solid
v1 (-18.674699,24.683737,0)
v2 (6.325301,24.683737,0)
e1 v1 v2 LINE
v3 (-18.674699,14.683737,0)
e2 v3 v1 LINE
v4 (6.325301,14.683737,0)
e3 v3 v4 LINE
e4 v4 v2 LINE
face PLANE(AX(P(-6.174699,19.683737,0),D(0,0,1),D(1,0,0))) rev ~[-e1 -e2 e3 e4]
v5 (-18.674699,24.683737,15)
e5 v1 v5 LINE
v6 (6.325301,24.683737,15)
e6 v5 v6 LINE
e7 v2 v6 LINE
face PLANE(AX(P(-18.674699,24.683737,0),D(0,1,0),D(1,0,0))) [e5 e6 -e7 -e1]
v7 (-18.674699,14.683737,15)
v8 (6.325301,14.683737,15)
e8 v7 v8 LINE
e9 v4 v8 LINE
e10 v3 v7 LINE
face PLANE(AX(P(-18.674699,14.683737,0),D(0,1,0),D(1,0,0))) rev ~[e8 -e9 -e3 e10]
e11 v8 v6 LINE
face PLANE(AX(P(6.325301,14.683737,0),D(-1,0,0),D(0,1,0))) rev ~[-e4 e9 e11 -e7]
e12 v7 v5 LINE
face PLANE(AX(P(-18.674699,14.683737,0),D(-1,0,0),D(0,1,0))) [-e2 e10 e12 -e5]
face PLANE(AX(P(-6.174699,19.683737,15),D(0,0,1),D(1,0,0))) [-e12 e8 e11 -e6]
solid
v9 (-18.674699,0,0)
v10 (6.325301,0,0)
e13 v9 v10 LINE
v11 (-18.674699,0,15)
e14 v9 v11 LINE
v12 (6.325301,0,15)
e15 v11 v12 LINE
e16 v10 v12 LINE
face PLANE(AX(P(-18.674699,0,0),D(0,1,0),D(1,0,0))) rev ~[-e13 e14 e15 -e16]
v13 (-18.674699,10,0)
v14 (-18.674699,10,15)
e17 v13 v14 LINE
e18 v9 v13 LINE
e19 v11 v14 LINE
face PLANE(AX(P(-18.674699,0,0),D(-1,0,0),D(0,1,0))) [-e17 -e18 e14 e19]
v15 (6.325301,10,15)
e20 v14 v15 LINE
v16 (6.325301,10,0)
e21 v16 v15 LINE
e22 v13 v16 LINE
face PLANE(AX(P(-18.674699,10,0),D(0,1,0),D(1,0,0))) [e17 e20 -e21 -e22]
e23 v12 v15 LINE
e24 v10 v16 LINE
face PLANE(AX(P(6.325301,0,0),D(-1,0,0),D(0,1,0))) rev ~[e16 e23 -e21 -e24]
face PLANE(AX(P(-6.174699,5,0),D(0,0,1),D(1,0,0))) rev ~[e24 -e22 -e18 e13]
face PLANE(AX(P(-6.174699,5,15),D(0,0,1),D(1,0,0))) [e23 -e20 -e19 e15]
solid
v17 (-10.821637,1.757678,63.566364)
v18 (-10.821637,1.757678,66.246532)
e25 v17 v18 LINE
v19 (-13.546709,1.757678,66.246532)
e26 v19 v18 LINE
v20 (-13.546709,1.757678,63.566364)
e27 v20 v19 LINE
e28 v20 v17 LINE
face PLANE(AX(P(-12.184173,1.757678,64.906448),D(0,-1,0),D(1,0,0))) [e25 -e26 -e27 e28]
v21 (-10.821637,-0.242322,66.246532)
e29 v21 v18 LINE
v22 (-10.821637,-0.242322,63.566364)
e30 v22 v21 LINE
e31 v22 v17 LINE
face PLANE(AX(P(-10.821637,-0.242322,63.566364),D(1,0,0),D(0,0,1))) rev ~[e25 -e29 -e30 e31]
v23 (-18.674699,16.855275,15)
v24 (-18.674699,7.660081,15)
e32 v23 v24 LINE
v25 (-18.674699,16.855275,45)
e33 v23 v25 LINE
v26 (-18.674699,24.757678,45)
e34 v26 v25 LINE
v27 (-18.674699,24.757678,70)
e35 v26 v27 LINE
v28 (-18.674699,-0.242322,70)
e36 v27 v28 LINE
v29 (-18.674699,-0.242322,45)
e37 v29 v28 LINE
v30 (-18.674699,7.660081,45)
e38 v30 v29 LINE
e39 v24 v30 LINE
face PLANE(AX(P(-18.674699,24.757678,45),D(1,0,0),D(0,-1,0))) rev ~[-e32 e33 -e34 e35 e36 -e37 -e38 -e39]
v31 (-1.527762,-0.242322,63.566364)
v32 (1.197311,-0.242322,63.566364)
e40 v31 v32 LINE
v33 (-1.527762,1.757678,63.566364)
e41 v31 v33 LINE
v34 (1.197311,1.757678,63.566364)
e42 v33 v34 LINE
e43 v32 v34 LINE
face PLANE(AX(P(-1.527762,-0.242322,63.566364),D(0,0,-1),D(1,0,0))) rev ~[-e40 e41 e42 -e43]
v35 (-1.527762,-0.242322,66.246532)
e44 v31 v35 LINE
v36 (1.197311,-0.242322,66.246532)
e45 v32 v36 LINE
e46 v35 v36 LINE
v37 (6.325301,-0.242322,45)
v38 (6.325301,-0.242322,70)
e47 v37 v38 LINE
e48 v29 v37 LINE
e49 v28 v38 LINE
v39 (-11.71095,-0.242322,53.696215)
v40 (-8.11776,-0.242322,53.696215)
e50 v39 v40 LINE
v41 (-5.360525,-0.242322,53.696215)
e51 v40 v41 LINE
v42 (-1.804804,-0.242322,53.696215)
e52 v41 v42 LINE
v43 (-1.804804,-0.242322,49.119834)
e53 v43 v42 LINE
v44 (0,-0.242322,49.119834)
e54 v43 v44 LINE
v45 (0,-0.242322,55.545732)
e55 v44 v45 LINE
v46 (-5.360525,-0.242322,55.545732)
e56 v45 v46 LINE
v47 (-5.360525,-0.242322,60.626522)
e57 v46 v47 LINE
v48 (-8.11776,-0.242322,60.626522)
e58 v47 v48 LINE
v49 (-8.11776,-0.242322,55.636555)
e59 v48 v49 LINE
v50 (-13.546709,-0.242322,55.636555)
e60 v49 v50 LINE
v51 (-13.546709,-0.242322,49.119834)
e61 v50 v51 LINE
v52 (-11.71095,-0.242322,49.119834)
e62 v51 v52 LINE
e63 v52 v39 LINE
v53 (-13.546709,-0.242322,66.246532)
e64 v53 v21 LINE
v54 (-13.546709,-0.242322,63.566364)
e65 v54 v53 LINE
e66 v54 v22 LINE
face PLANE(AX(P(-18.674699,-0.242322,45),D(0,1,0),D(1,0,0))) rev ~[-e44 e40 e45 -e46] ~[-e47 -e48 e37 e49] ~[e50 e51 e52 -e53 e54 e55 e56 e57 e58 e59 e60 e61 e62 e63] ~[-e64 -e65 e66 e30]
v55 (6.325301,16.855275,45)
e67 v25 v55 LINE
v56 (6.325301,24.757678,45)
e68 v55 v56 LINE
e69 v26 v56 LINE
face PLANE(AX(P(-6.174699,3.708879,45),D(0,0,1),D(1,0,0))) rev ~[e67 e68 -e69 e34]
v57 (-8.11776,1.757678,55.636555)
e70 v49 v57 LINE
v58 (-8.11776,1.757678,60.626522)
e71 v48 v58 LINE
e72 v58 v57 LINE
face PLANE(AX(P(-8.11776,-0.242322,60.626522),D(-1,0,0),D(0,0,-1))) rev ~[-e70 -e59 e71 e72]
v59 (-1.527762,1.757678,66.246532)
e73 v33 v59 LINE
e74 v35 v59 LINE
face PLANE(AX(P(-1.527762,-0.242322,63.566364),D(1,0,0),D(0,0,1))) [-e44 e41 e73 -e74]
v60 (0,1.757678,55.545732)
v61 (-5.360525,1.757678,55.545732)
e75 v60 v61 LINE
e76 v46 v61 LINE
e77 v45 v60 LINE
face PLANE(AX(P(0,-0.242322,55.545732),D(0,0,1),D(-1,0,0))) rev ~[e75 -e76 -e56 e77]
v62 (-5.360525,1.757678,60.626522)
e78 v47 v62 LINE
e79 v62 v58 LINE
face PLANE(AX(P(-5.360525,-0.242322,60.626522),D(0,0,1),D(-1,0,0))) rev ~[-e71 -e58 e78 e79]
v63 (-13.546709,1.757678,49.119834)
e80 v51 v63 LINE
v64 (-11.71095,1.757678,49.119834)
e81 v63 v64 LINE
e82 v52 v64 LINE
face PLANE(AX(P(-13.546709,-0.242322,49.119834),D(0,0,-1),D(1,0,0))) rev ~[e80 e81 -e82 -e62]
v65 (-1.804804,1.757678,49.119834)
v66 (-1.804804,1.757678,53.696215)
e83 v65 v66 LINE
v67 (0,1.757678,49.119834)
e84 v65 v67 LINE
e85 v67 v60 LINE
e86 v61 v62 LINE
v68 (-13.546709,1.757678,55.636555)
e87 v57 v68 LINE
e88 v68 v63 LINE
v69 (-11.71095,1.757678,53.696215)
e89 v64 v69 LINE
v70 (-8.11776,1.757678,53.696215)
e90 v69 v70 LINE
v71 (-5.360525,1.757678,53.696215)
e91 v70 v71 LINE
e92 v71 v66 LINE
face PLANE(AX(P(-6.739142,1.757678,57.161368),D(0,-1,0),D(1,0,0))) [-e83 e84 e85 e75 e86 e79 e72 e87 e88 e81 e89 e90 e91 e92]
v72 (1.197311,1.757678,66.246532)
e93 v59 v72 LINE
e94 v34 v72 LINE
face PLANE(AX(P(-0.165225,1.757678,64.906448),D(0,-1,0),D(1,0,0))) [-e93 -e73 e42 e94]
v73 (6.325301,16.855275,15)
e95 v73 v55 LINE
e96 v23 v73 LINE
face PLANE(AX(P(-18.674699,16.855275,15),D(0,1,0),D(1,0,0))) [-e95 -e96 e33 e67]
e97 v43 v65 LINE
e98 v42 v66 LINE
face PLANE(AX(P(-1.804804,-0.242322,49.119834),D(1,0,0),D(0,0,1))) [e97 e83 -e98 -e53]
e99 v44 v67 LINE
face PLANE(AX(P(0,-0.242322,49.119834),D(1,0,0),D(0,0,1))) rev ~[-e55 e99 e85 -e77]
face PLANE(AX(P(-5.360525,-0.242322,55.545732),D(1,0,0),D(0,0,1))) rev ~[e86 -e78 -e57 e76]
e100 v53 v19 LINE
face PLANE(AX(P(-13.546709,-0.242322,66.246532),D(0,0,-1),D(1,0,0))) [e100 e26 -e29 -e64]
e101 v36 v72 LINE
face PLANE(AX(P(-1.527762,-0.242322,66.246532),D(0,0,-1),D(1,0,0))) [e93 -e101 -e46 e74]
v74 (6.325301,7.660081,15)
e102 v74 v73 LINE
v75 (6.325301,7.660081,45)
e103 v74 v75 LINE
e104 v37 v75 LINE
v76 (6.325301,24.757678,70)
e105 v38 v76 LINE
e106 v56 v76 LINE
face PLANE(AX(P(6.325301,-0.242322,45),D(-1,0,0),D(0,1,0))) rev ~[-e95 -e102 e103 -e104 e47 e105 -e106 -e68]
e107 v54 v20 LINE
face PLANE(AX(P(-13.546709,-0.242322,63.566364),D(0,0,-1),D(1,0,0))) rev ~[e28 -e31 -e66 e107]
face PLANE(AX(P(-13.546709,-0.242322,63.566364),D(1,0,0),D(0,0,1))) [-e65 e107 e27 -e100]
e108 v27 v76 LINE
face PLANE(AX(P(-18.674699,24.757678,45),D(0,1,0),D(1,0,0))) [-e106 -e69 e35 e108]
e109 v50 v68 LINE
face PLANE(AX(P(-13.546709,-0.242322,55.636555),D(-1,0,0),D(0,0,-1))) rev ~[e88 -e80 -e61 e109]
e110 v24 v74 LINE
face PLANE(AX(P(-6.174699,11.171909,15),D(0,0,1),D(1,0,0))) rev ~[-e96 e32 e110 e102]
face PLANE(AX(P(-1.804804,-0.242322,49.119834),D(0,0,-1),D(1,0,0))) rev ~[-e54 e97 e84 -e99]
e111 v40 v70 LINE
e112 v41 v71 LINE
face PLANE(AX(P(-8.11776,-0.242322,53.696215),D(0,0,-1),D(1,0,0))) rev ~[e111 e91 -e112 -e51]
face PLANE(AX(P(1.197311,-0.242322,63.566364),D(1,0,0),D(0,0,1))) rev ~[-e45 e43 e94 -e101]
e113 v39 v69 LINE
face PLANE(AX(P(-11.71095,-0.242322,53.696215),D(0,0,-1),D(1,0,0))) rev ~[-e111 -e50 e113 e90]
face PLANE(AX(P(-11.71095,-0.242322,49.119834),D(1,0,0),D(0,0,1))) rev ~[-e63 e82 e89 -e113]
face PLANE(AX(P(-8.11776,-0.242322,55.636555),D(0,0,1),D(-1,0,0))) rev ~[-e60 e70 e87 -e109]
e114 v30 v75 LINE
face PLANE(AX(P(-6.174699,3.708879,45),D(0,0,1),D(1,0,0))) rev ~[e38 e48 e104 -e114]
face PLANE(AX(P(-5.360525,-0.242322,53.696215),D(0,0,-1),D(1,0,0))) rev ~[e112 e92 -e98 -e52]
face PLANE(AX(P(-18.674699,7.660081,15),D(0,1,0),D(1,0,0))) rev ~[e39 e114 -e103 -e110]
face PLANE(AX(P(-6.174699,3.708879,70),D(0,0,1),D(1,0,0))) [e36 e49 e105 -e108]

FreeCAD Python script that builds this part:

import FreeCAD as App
import Part
import Sketcher
from FreeCAD import Vector


def add_polygon(sketch, points):
    """Adds a closed chain of lines whose ends are joined by coincident constraints."""
    first, n = sketch.GeometryCount, len(points)
    for a, b in zip(points, points[1:] + points[:1]):
        sketch.addGeometry(Part.LineSegment(App.Vector(*a, 0), App.Vector(*b, 0)), False)
    for i in range(n):
        sketch.addConstraint(Sketcher.Constraint("Coincident", first + i, 2, first + (i + 1) % n, 1))

doc = App.newDocument("Part")
params = doc.addObject("Spreadsheet::Sheet", "Params")
for row, (alias, value) in enumerate([
    ("sketch1_width", "25 mm"),
    ("sketch1_height", "10 mm"),
    ("pad1_length", "15 mm"),
    ("sketch2_width", "25 mm"),
    ("sketch2_height", "10 mm"),
    ("pad2_length", "15 mm"),
    ("sketch3_width", "25 mm"),
    ("pad3_length", "30 mm"),
    ("sketch4_width", "25 mm"),
    ("pad4_length", "25 mm"),
    ("pocket1_length", "2 mm"),
], start=1):
    params.set(f"A{row}", alias)
    params.set(f"B{row}", "=" + value)
    params.setAlias(f"B{row}", alias)

body = doc.addObject("PartDesign::Body", "Body")

# Sketch on XY plane
sketch1 = body.newObject("Sketcher::SketchObject", "Sketch")
sketch1.AttachmentSupport = (doc.getObject("XY_Plane"), [""])
sketch1.MapMode = "FlatFace"
add_polygon(sketch1, [(-18.674699, 24.683737), (-18.674699, 14.683737), (6.325301, 14.683737), (6.325301, 24.683737)])  # lines 0-3
sketch1.addConstraint(Sketcher.Constraint("Vertical", 0))
sketch1.addConstraint(Sketcher.Constraint("Horizontal", 1))
sketch1.addConstraint(Sketcher.Constraint("Vertical", 2))
sketch1.addConstraint(Sketcher.Constraint("Horizontal", 3))
sketch1.addConstraint(Sketcher.Constraint("DistanceX", 1, 1, 1, 2, 25.0))
sketch1.addConstraint(Sketcher.Constraint("DistanceY", 0, 2, 0, 1, 10.0))
sketch1.addConstraint(Sketcher.Constraint("DistanceX", 0, 2, -1, 1, 18.674699))
sketch1.addConstraint(Sketcher.Constraint("DistanceY", -1, 1, 0, 2, 14.683737))
sketch1.setExpression("Constraints[8]", "Params.sketch1_width")
sketch1.setExpression("Constraints[9]", "Params.sketch1_height")
pad1 = body.newObject("PartDesign::Pad", "Pad")
pad1.Profile = sketch1
pad1.setExpression("Length", "Params.pad1_length")
body2 = doc.addObject("PartDesign::Body", "Body001")

# Sketch on XY plane
sketch2 = body2.newObject("Sketcher::SketchObject", "Sketch001")
sketch2.AttachmentSupport = (doc.getObject("XY_Plane001"), [""])
sketch2.MapMode = "FlatFace"
add_polygon(sketch2, [(-18.674699, 10), (-18.674699, 0), (6.325301, 0), (6.325301, 10)])  # lines 0-3
sketch2.addConstraint(Sketcher.Constraint("Vertical", 0))
sketch2.addConstraint(Sketcher.Constraint("Horizontal", 1))
sketch2.addConstraint(Sketcher.Constraint("Vertical", 2))
sketch2.addConstraint(Sketcher.Constraint("Horizontal", 3))
sketch2.addConstraint(Sketcher.Constraint("PointOnObject", 0, 2, -1))
sketch2.addConstraint(Sketcher.Constraint("DistanceX", 1, 1, 1, 2, 25.0))
sketch2.addConstraint(Sketcher.Constraint("DistanceY", 0, 2, 0, 1, 10.0))
sketch2.addConstraint(Sketcher.Constraint("DistanceX", 0, 2, -1, 1, 18.674699))
sketch2.setExpression("Constraints[9]", "Params.sketch2_width")
sketch2.setExpression("Constraints[10]", "Params.sketch2_height")
pad2 = body2.newObject("PartDesign::Pad", "Pad001")
pad2.Profile = sketch2
pad2.setExpression("Length", "Params.pad2_length")
body3 = doc.addObject("PartDesign::Body", "Body002")

# Sketch on XY plane
sketch3 = body3.newObject("Sketcher::SketchObject", "Sketch002")
sketch3.AttachmentSupport = (doc.getObject("XY_Plane002"), [""])
sketch3.MapMode = "FlatFace"
sketch3.AttachmentOffset = App.Placement(Vector(0, 0, 15), App.Rotation())
add_polygon(sketch3, [(-18.674699, 7.660081), (6.325301, 7.660081), (6.325301, 16.855275), (-18.674699, 16.855275)])  # lines 0-3
sketch3.addConstraint(Sketcher.Constraint("Horizontal", 0))
sketch3.addConstraint(Sketcher.Constraint("Vertical", 1))
sketch3.addConstraint(Sketcher.Constraint("Horizontal", 2))
sketch3.addConstraint(Sketcher.Constraint("Vertical", 3))
sketch3.addConstraint(Sketcher.Constraint("DistanceX", 0, 1, 0, 2, 25.0))
sketch3.addConstraint(Sketcher.Constraint("DistanceX", -1, 1, 0, 2, 6.325301))
sketch3.addConstraint(Sketcher.Constraint("DistanceY", 1, 1, 1, 2, 9.195194))
sketch3.addConstraint(Sketcher.Constraint("DistanceY", -1, 1, 0, 2, 7.660081))
sketch3.setExpression("Constraints[8]", "Params.sketch3_width")
pad3 = body3.newObject("PartDesign::Pad", "Pad002")
pad3.Profile = sketch3
pad3.setExpression("Length", "Params.pad3_length")

# Sketch on XY plane
sketch4 = body3.newObject("Sketcher::SketchObject", "Sketch003")
sketch4.AttachmentSupport = (doc.getObject("XY_Plane002"), [""])
sketch4.MapMode = "FlatFace"
sketch4.AttachmentOffset = App.Placement(Vector(0, 0, 45), App.Rotation())
add_polygon(sketch4, [(-18.674699, -0.242322), (6.325301, -0.242322), (6.325301, 24.757678), (-18.674699, 24.757678)])  # lines 0-3
sketch4.addConstraint(Sketcher.Constraint("Horizontal", 0))
sketch4.addConstraint(Sketcher.Constraint("Vertical", 1))
sketch4.addConstraint(Sketcher.Constraint("Horizontal", 2))
sketch4.addConstraint(Sketcher.Constraint("Vertical", 3))
sketch4.addConstraint(Sketcher.Constraint("Equal", 2, 1))
sketch4.addConstraint(Sketcher.Constraint("DistanceX", 0, 1, 0, 2, 25.0))
sketch4.addConstraint(Sketcher.Constraint("DistanceX", -1, 1, 0, 2, 6.325301))
sketch4.addConstraint(Sketcher.Constraint("DistanceY", 0, 2, -1, 1, 0.242322))
sketch4.setExpression("Constraints[9]", "Params.sketch4_width")
pad4 = body3.newObject("PartDesign::Pad", "Pad003")
pad4.Profile = sketch4
pad4.setExpression("Length", "Params.pad4_length")

# Sketch on XZ plane
sketch5 = body3.newObject("Sketcher::SketchObject", "Sketch004")
sketch5.AttachmentSupport = (doc.getObject("XZ_Plane002"), [""])
sketch5.MapMode = "FlatFace"
sketch5.AttachmentOffset = App.Placement(Vector(0, 0, 0.242322), App.Rotation())
add_polygon(sketch5, [(-13.546709, 66.246532), (-13.546709, 63.566364), (-10.821637, 63.566364), (-10.821637, 66.246532)])  # lines 0-3
add_polygon(sketch5, [(-1.527762, 66.246532), (-1.527762, 63.566364), (1.197311, 63.566364), (1.197311, 66.246532)])  # lines 4-7
add_polygon(sketch5, [(-5.360525, 60.626522), (-8.11776, 60.626522), (-8.11776, 55.636555), (-13.546709, 55.636555), (-13.546709, 49.119834), (-11.71095, 49.119834), (-11.71095, 53.696215), (-8.11776, 53.696215), (-5.360525, 53.696215), (-1.804804, 53.696215), (-1.804804, 49.119834), (0, 49.119834), (0, 55.545732), (-5.360525, 55.545732)])  # lines 8-21
sketch5.addConstraint(Sketcher.Constraint("Vertical", 0))
sketch5.addConstraint(Sketcher.Constraint("Horizontal", 1))
sketch5.addConstraint(Sketcher.Constraint("Vertical", 2))
sketch5.addConstraint(Sketcher.Constraint("Horizontal", 3))
sketch5.addConstraint(Sketcher.Constraint("Vertical", 4))
sketch5.addConstraint(Sketcher.Constraint("Horizontal", 5))
sketch5.addConstraint(Sketcher.Constraint("Vertical", 6))
sketch5.addConstraint(Sketcher.Constraint("Horizontal", 7))
sketch5.addConstraint(Sketcher.Constraint("Horizontal", 8))
sketch5.addConstraint(Sketcher.Constraint("Vertical", 9))
sketch5.addConstraint(Sketcher.Constraint("Horizontal", 10))
sketch5.addConstraint(Sketcher.Constraint("Vertical", 11))
sketch5.addConstraint(Sketcher.Constraint("Horizontal", 12))
sketch5.addConstraint(Sketcher.Constraint("Vertical", 13))
sketch5.addConstraint(Sketcher.Constraint("Horizontal", 14))
sketch5.addConstraint(Sketcher.Constraint("Horizontal", 15))
sketch5.addConstraint(Sketcher.Constraint("Horizontal", 16))
sketch5.addConstraint(Sketcher.Constraint("Vertical", 17))
sketch5.addConstraint(Sketcher.Constraint("Horizontal", 18))
sketch5.addConstraint(Sketcher.Constraint("Vertical", 19))
sketch5.addConstraint(Sketcher.Constraint("Horizontal", 20))
sketch5.addConstraint(Sketcher.Constraint("Vertical", 21))
sketch5.addConstraint(Sketcher.Constraint("PointOnObject", 18, 2, -2))
sketch5.addConstraint(Sketcher.Constraint("Horizontal", 1, 2, 4, 2))
sketch5.addConstraint(Sketcher.Constraint("Horizontal", 3, 2, 6, 2))
sketch5.addConstraint(Sketcher.Constraint("Horizontal", 12, 2, 17, 2))
sketch5.addConstraint(Sketcher.Constraint("Vertical", 3, 2, 10, 2))
sketch5.addConstraint(Sketcher.Constraint("Vertical", 9, 2, 14, 2))
sketch5.addConstraint(Sketcher.Constraint("Vertical", 15, 2, 20, 2))
sketch5.addConstraint(Sketcher.Constraint("Equal", 3, 5))
sketch5.addConstraint(Sketcher.Constraint("DistanceX", 8, 2, 4, 2, 6.589998))
sketch5.addConstraint(Sketcher.Constraint("DistanceY", 19, 1, 19, 2, 6.425899))
sketch5.addConstraint(Sketcher.Constraint("DistanceX", 10, 2, 10, 1, 5.428949))
sketch5.addConstraint(Sketcher.Constraint("DistanceX", 12, 1, 12, 2, 1.835759))
sketch5.addConstraint(Sketcher.Constraint("DistanceX", 16, 1, 16, 2, 3.555721))
sketch5.addConstraint(Sketcher.Constraint("DistanceY", 11, 2, 11, 1, 6.516721))
sketch5.addConstraint(Sketcher.Constraint("DistanceY", 13, 1, 13, 2, 4.576381))
sketch5.addConstraint(Sketcher.Constraint("DistanceY", 21, 1, 21, 2, 5.080789))
sketch5.addConstraint(Sketcher.Constraint("DistanceX", 1, 1, 1, 2, 2.725072))
sketch5.addConstraint(Sketcher.Constraint("DistanceX", 8, 2, 8, 1, 2.757234))
sketch5.addConstraint(Sketcher.Constraint("DistanceX", 18, 1, 18, 2, 1.804804))
sketch5.addConstraint(Sketcher.Constraint("DistanceY", 0, 2, 0, 1, 2.680168))
sketch5.addConstraint(Sketcher.Constraint("DistanceY", -1, 1, 2, 2, 66.246532))
sketch5.addConstraint(Sketcher.Constraint("DistanceY", -1, 1, 8, 2, 60.626522))
pocket1 = body3.newObject("PartDesign::Pocket", "Pocket")
pocket1.Profile = sketch5
pocket1.setExpression("Length", "Params.pocket1_length")

doc.recompute()
